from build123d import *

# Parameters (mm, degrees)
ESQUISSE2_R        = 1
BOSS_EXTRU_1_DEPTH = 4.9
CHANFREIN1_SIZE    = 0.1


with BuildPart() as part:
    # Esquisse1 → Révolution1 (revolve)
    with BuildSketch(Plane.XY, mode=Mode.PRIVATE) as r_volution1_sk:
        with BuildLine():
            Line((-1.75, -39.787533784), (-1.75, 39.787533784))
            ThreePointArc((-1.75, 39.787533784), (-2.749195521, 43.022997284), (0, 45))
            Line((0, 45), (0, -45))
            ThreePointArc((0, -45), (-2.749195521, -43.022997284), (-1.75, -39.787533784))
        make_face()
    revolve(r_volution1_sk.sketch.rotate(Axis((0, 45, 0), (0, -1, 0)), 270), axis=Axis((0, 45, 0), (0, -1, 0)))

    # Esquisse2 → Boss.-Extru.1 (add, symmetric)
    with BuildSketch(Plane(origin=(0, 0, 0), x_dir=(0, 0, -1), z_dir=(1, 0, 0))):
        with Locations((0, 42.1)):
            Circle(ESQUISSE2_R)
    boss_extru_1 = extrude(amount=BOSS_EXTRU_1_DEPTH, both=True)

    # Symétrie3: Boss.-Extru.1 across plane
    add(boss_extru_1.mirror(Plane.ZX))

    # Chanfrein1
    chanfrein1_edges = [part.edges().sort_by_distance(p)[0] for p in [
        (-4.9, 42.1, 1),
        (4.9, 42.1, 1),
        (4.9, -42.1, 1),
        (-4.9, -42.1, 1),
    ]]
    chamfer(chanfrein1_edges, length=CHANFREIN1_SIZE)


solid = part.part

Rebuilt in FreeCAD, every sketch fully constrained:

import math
import FreeCAD as App
import Part
import Sketcher

V = App.Vector


def edges_at(feature, points):
    """Names of the edges that pass closest to the given points."""
    edges = feature.Shape.Edges
    near = lambda p: min(range(len(edges)), key=lambda i: edges[i].distToShape(Part.Vertex(*p))[0])
    return sorted({f"Edge{near(p) + 1}" for p in points})

doc = App.newDocument("Part")
body = doc.addObject("PartDesign::Body", "Body")

sketch1 = body.newObject("Sketcher::SketchObject", "Sketch")
sketch1.AttachmentSupport = (doc.getObject("XY_Plane"), [""])
sketch1.MapMode = "FlatFace"
sketch1.addGeometry([
    Part.LineSegment(V(-1.8, 39.8, 0), V(-1.8, -39.8, 0)),
    Part.ArcOfCircle(Part.Circle(V(0, -42.1, 0), V(0, 0, 1), 2.9), math.radians(127), math.radians(270)),
    Part.LineSegment(V(0, -45, 0), V(0, 45, 0)),
    Part.ArcOfCircle(Part.Circle(V(0, 42.1, 0), V(0, 0, 1), 2.9), math.radians(90), math.radians(233)),
], False)
sketch1.addConstraint([
    Sketcher.Constraint("Coincident", 0, 2, 1, 1),
    Sketcher.Constraint("Coincident", 1, 2, 2, 1),
    Sketcher.Constraint("Coincident", 2, 2, 3, 1),
    Sketcher.Constraint("Coincident", 3, 2, 0, 1),
    Sketcher.Constraint("Vertical", 0),
    Sketcher.Constraint("Vertical", 2),
    Sketcher.Constraint("Equal", 1, 3),
    Sketcher.Constraint("Symmetric", 1, 3, 3, 3, -1, 1),
    Sketcher.Constraint("PointOnObject", 1, 3, -2),
    Sketcher.Constraint("PointOnObject", 1, 2, -2),
    Sketcher.Constraint("Radius", 1, 2.9),
    Sketcher.Constraint("DistanceY", 2, 1, 2, 2, 90.0),
    Sketcher.Constraint("DistanceX", 0, 2, -1, 1, 1.75),
])
revolution = body.newObject("PartDesign::Revolution", "Revolution")
revolution.Profile = sketch1
revolution.ReferenceAxis = (sketch1, ["V_Axis"])
revolution.Angle = 360

sketch2 = body.newObject("Sketcher::SketchObject", "Sketch001")
sketch2.AttachmentSupport = (doc.getObject("YZ_Plane"), [""])
sketch2.MapMode = "FlatFace"
sketch2.addGeometry(Part.Circle(V(42.1, 0, 0), V(0, 0, 1), 1), False)
sketch2.addConstraint([
    Sketcher.Constraint("PointOnObject", 0, 3, -1),
    Sketcher.Constraint("Diameter", 0, 2.0),
    Sketcher.Constraint("DistanceX", -1, 1, 0, 3, 42.1),
])
pad1 = body.newObject("PartDesign::Pad", "Pad")
pad1.Profile = sketch2
pad1.Length = 9.8
pad1.Midplane = True
doc.recompute()

mirrored = body.newObject("PartDesign::Mirrored", "Mirrored")
mirrored.Originals = [pad1]
mirrored.MirrorPlane = (doc.getObject("XZ_Plane"), [""])
body.Tip = mirrored
doc.recompute()

chamfer = body.newObject("PartDesign::Chamfer", "Chamfer")
chamfer.Base = (mirrored, edges_at(mirrored, [
    (-4.9, 42.1, 1),
    (4.9, 42.1, 1),
    (4.9, -42.1, 1),
    (-4.9, -42.1, 1),
]))
chamfer.Size = 0.1

doc.recompute()
